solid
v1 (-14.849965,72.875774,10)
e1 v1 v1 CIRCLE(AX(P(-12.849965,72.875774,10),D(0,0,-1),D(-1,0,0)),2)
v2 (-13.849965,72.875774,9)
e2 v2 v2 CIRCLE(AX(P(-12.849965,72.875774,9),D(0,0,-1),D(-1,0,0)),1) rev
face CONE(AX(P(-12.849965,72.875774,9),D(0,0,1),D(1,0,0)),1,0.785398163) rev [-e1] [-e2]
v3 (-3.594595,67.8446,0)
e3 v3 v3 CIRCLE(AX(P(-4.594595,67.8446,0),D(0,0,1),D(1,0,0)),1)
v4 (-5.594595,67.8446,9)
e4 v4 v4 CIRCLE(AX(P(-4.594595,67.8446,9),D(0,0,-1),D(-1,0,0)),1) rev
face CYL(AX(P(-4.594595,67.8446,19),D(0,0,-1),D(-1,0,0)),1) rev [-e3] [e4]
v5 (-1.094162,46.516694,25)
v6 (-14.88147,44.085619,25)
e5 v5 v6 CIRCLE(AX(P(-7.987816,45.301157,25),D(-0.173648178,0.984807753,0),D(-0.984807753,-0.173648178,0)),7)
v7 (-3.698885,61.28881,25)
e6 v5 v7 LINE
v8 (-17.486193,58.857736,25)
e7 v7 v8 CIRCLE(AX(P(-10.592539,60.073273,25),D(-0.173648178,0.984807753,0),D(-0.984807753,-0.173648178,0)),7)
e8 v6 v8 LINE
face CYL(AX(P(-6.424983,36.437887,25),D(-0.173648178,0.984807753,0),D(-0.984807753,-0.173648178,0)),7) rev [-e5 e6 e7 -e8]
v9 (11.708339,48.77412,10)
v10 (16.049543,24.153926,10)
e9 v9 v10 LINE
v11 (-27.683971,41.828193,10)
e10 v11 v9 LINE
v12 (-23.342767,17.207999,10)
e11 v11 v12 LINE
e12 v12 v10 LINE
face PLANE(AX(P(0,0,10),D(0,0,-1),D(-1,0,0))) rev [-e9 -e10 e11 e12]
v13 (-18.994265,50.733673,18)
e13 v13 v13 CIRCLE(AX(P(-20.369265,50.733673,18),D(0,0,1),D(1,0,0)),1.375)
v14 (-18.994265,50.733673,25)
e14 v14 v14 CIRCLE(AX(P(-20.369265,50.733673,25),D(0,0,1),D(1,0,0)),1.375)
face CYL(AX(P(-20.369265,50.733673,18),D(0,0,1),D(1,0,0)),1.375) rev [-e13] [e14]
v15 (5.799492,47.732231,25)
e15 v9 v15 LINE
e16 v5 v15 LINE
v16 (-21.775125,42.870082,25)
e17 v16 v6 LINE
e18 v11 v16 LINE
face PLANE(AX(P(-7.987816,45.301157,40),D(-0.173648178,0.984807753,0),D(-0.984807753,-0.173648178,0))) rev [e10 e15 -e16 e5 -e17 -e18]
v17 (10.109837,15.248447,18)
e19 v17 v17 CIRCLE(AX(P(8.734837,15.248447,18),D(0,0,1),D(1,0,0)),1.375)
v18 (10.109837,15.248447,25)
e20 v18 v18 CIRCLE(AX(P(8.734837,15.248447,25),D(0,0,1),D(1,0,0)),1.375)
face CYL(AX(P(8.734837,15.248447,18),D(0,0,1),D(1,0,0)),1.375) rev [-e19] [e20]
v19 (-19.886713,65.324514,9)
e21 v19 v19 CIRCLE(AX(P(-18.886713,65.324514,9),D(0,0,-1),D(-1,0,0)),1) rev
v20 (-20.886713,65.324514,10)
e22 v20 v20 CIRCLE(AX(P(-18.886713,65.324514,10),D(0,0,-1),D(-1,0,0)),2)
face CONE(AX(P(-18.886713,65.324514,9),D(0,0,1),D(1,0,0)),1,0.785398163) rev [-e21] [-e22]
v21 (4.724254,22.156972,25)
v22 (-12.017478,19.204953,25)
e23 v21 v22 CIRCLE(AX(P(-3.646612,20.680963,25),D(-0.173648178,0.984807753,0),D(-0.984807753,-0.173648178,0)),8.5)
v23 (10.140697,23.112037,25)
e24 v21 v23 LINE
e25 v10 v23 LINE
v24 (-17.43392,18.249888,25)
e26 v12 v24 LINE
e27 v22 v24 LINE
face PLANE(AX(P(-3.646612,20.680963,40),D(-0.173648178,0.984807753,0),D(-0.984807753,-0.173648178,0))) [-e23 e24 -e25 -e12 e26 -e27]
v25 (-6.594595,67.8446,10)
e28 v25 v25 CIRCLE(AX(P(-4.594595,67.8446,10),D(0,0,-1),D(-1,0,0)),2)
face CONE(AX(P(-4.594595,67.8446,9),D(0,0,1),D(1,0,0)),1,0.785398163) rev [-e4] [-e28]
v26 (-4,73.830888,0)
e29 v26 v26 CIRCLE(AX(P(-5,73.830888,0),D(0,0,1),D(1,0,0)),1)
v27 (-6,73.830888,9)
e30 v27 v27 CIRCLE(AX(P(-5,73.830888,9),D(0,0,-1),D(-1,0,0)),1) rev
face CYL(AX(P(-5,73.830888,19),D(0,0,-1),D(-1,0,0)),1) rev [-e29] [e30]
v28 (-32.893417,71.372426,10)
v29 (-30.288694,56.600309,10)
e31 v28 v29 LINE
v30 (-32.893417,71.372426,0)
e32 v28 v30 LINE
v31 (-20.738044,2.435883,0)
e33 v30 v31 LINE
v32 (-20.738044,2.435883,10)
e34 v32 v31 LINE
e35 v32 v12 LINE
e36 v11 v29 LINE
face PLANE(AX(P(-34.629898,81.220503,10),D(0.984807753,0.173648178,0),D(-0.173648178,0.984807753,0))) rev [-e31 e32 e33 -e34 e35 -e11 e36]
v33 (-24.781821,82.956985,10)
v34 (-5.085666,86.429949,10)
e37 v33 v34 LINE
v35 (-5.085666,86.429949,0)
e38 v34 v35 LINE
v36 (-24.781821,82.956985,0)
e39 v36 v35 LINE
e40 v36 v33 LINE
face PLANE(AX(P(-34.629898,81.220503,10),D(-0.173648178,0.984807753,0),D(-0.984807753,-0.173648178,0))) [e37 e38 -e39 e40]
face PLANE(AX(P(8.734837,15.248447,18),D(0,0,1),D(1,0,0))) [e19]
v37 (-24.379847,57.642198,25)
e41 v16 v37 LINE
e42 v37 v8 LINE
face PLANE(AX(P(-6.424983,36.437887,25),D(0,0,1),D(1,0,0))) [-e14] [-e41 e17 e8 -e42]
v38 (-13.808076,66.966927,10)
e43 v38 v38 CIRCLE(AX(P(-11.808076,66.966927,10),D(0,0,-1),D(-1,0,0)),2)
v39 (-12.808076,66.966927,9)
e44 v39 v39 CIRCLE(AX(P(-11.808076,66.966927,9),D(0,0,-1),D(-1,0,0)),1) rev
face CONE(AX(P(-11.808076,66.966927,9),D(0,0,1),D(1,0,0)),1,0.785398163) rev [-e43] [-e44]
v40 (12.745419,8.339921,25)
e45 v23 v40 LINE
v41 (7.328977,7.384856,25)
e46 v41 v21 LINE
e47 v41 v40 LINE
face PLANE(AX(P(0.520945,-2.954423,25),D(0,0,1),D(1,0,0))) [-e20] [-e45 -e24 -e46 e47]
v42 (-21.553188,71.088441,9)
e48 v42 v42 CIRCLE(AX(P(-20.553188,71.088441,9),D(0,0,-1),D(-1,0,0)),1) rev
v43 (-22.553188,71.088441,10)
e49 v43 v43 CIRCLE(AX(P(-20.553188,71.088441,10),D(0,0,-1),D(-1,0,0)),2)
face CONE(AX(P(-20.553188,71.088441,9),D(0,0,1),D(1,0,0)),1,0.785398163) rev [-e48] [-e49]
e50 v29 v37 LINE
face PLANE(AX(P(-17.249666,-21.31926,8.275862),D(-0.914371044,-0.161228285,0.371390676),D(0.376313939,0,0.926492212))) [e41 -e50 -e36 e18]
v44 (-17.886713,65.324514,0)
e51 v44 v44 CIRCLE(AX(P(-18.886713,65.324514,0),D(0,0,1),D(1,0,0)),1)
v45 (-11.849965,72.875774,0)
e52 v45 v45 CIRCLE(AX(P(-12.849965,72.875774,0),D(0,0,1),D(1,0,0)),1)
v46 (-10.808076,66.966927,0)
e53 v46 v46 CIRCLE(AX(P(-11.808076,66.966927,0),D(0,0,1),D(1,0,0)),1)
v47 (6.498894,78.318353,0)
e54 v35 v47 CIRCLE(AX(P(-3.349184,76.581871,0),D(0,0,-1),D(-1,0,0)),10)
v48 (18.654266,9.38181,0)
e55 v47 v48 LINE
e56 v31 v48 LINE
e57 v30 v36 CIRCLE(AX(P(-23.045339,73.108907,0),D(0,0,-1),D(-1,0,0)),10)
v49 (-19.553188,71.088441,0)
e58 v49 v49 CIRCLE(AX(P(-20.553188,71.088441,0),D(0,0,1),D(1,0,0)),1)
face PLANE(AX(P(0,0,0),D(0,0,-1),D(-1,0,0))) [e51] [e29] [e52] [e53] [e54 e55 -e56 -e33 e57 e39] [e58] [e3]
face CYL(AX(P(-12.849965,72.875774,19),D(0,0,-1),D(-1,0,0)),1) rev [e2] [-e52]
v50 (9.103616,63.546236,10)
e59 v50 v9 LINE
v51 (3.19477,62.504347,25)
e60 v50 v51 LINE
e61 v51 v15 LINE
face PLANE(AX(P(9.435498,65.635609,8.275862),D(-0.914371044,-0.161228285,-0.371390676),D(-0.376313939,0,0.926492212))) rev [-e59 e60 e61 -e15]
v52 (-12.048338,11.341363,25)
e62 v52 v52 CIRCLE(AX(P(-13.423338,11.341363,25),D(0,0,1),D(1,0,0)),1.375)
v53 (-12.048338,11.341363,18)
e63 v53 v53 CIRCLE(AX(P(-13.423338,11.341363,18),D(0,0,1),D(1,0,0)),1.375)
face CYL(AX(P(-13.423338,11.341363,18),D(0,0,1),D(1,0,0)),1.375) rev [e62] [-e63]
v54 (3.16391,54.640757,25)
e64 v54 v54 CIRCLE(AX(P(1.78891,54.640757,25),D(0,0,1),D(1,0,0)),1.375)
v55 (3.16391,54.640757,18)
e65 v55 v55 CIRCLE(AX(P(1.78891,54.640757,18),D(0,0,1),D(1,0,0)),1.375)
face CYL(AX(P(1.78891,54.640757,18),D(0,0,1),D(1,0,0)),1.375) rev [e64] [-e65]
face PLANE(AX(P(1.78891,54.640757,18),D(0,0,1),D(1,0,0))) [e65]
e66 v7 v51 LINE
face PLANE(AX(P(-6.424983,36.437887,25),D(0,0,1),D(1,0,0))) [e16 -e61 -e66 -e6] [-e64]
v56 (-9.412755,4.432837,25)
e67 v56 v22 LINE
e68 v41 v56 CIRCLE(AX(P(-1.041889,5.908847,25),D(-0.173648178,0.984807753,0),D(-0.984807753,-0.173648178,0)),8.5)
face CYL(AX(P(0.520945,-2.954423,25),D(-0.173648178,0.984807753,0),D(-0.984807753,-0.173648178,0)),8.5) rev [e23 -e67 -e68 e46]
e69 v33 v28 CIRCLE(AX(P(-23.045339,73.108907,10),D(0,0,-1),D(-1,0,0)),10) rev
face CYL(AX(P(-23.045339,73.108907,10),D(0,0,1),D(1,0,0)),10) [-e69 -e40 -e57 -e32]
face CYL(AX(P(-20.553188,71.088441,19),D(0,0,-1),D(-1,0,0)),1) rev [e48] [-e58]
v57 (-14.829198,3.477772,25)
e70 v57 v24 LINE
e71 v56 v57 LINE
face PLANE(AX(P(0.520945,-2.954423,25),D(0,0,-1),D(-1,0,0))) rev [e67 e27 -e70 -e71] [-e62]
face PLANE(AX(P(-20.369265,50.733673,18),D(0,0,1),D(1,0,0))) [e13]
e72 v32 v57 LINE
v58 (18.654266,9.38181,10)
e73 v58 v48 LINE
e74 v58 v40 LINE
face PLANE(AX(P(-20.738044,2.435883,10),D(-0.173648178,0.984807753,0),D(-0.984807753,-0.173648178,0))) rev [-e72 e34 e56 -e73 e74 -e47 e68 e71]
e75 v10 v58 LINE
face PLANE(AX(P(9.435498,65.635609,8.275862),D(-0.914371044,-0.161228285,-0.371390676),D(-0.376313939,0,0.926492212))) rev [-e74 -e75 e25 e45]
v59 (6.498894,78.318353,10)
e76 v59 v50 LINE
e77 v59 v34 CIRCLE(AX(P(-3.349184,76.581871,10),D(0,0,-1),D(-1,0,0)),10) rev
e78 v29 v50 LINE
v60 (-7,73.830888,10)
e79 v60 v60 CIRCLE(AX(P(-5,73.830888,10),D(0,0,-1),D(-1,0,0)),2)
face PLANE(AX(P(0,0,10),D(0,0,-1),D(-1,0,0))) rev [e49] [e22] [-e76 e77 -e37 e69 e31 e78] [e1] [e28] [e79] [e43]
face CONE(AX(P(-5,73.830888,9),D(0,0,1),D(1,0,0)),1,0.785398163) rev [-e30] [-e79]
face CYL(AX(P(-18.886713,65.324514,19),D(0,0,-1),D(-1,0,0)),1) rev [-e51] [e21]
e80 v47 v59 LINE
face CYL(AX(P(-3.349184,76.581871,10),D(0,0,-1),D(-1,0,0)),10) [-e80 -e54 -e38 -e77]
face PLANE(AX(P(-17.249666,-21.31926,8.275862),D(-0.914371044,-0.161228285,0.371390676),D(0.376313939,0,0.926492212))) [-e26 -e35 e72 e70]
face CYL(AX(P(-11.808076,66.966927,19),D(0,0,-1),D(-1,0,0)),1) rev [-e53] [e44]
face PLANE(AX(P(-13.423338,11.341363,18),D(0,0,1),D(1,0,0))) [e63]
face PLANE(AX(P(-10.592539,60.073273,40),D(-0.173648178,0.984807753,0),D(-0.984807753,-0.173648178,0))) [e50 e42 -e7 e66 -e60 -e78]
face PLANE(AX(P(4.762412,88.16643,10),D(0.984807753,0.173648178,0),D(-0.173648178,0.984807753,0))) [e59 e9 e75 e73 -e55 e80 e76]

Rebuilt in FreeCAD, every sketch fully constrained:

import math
import FreeCAD as App
import Part
import Sketcher
Q = App.Units.Quantity


def edges_at(feature, points):
    """Names of the edges that pass closest to the given points."""
    edges = feature.Shape.Edges
    near = lambda p: min(range(len(edges)), key=lambda i: edges[i].distToShape(Part.Vertex(*p))[0])
    return sorted({f"Edge{near(p) + 1}" for p in points})

doc = App.newDocument("Part")
body = doc.addObject("PartDesign::Body", "Body")

sketch1 = body.newObject("Sketcher::SketchObject", "Sketch")
sketch1.AttachmentSupport = (doc.getObject("XY_Plane"), [""])
sketch1.MapMode = "FlatFace"
sketch1.addGeometry([
    Part.LineSegment(App.Vector(5, 88, 0), App.Vector(-35, 81, 0)),
    Part.LineSegment(App.Vector(-35, 81, 0), App.Vector(-21, 2, 0)),
    Part.LineSegment(App.Vector(-21, 2, 0), App.Vector(19, 9, 0)),
    Part.LineSegment(App.Vector(19, 9, 0), App.Vector(5, 88, 0)),
], False)
sketch1.addConstraint([
    Sketcher.Constraint("Coincident", 0, 2, 1, 1),
    Sketcher.Constraint("Coincident", 1, 2, 2, 1),
    Sketcher.Constraint("Coincident", 2, 2, 3, 1),
    Sketcher.Constraint("Coincident", 3, 2, 0, 1),
    Sketcher.Constraint("Perpendicular", 0, 1),
    Sketcher.Constraint("Perpendicular", 1, 2),
    Sketcher.Constraint("Perpendicular", 2, 3),
    Sketcher.Constraint("Angle", 0, Q("-170 deg")),
    Sketcher.Constraint("Distance", 0, Q("40 mm")),
    Sketcher.Constraint("Distance", 1, Q("80 mm")),
    Sketcher.Constraint("DistanceX", 0, 2, -1, 1, Q("34.629898 mm")),
    Sketcher.Constraint("DistanceY", -1, 1, 2, 2, Q("9.38181 mm")),
])
pad1 = body.newObject("PartDesign::Pad", "Pad")
pad1.Profile = sketch1
pad1.Length = 10

sketch2 = body.newObject("Sketcher::SketchObject", "Sketch001")
sketch2.AttachmentSupport = (doc.getObject("XY_Plane"), [""])
sketch2.MapMode = "FlatFace"
sketch2.addGeometry([
    Part.Circle(App.Vector(-20.6, 71.1, 0), App.Vector(0, 0, 1), 1),
    Part.Circle(App.Vector(-5, 73.8, 0), App.Vector(0, 0, 1), 1),
    Part.Circle(App.Vector(-18.9, 65.3, 0), App.Vector(0, 0, 1), 1),
    Part.Circle(App.Vector(-4.6, 67.8, 0), App.Vector(0, 0, 1), 1),
    Part.Circle(App.Vector(-12.8, 72.9, 0), App.Vector(0, 0, 1), 1),
    Part.Circle(App.Vector(-11.8, 67, 0), App.Vector(0, 0, 1), 1),
], False)
sketch2.addConstraint([
    Sketcher.Constraint("Equal", 0, 1),
    Sketcher.Constraint("Equal", 1, 2),
    Sketcher.Constraint("Equal", 2, 3),
    Sketcher.Constraint("Equal", 3, 4),
    Sketcher.Constraint("Equal", 4, 5),
    Sketcher.Constraint("Diameter", 0, Q("2 mm")),
    Sketcher.Constraint("DistanceX", 1, 3, -1, 1, Q("5 mm")),
    Sketcher.Constraint("DistanceY", -1, 1, 3, 3, Q("67.8446 mm")),
    Sketcher.Constraint("DistanceY", -1, 1, 0, 3, Q("71.088441 mm")),
    Sketcher.Constraint("DistanceY", 3, 3, 1, 3, Q("5.986288 mm")),
    Sketcher.Constraint("DistanceX", 2, 3, 3, 3, Q("14.292118 mm")),
    Sketcher.Constraint("DistanceX", 4, 3, 3, 3, Q("8.255371 mm")),
    Sketcher.Constraint("DistanceY", 2, 3, 4, 3, Q("7.55126 mm")),
    Sketcher.Constraint("DistanceX", 4, 3, 5, 3, Q("1.041889 mm")),
    Sketcher.Constraint("DistanceY", 5, 3, 1, 3, Q("6.863961 mm")),
    Sketcher.Constraint("DistanceX", 0, 3, 5, 3, Q("8.745112 mm")),
    Sketcher.Constraint("DistanceX", 0, 3, -1, 1, Q("20.553188 mm")),
    Sketcher.Constraint("DistanceY", -1, 1, 2, 3, Q("65.324514 mm")),
])
pocket1 = body.newObject("PartDesign::Pocket", "Pocket")
pocket1.Profile = sketch2
pocket1.Length = 19
pocket1.Reversed = True
doc.recompute()

chamfer = body.newObject("PartDesign::Chamfer", "Chamfer")
chamfer.Base = (pocket1, edges_at(pocket1, [
    (-4, 73.831, 10),
    (-3.595, 67.845, 10),
    (-17.887, 65.325, 10),
    (-11.85, 72.876, 10),
    (-10.808, 66.967, 10),
    (-19.553, 71.088, 10),
]))
chamfer.Size = 1

sketch3 = body.newObject("Sketcher::SketchObject", "Sketch002")
sketch3.AttachmentSupport = (doc.getObject("XY_Plane"), [""])
sketch3.MapMode = "FlatFace"
sketch3.AttachmentOffset = App.Placement(App.Vector(0, 0, 10), App.Rotation())
sketch3.addGeometry([
    Part.LineSegment(App.Vector(-30, 57, 0), App.Vector(-28, 42, 0)),
    Part.LineSegment(App.Vector(-28, 42, 0), App.Vector(12, 49, 0)),
    Part.LineSegment(App.Vector(12, 49, 0), App.Vector(9, 64, 0)),
    Part.LineSegment(App.Vector(9, 64, 0), App.Vector(-30, 57, 0)),
    Part.LineSegment(App.Vector(16, 24, 0), App.Vector(-23, 17, 0)),
    Part.LineSegment(App.Vector(-23, 17, 0), App.Vector(-21, 2, 0)),
    Part.LineSegment(App.Vector(-21, 2, 0), App.Vector(19, 9, 0)),
    Part.LineSegment(App.Vector(19, 9, 0), App.Vector(16, 24, 0)),
], False)
sketch3.addConstraint([
    Sketcher.Constraint("Coincident", 0, 2, 1, 1),
    Sketcher.Constraint("Coincident", 1, 2, 2, 1),
    Sketcher.Constraint("Coincident", 2, 2, 3, 1),
    Sketcher.Constraint("Coincident", 3, 2, 0, 1),
    Sketcher.Constraint("Coincident", 4, 2, 5, 1),
    Sketcher.Constraint("Coincident", 5, 2, 6, 1),
    Sketcher.Constraint("Coincident", 6, 2, 7, 1),
    Sketcher.Constraint("Coincident", 7, 2, 4, 1),
    Sketcher.Constraint("Perpendicular", 0, 1),
    Sketcher.Constraint("Perpendicular", 1, 2),
    Sketcher.Constraint("Perpendicular", 2, 3),
    Sketcher.Constraint("Parallel", 3, 4),
    Sketcher.Constraint("Perpendicular", 4, 5),
    Sketcher.Constraint("Perpendicular", 5, 6),
    Sketcher.Constraint("Perpendicular", 6, 7),
    Sketcher.Constraint("Equal", 3, 4),
    Sketcher.Constraint("Equal", 2, 5),
    Sketcher.Constraint("Angle", 0, Q("-80 deg")),
    Sketcher.Constraint("Distance", 0, Q("15 mm")),
    Sketcher.Constraint("Distance", 1, Q("40 mm")),
    Sketcher.Constraint("DistanceY", -1, 1, 4, 2, Q("17.207999 mm")),
    Sketcher.Constraint("DistanceX", 0, 2, -1, 1, Q("27.683971 mm")),
    Sketcher.Constraint("DistanceY", -1, 1, 1, 2, Q("48.77412 mm")),
    Sketcher.Constraint("DistanceX", 3, 2, 5, 2, Q("9.55065 mm")),
])
pad2 = body.newObject("PartDesign::Pad", "Pad001")
pad2.Profile = sketch3
pad2.Length = 30

sketch4 = body.newObject("Sketcher::SketchObject", "Sketch003")
sketch4.Placement = App.Placement(App.Vector(-3.646612, 20.680963, 0), App.Rotation(App.Vector(0.984807753, 0.173648178, 0), App.Vector(0, 0, -1), App.Vector(-0.173648178, 0.984807753, 0), "ZXY"))
sketch4.addGeometry([
    Part.LineSegment(App.Vector(-14, -25, 0), App.Vector(-20, -10, 0)),
    Part.LineSegment(App.Vector(-20, -10, 0), App.Vector(-20, -40, 0)),
    Part.LineSegment(App.Vector(-20, -40, 0), App.Vector(-14, -40, 0)),
    Part.LineSegment(App.Vector(-14, -40, 0), App.Vector(-14, -25, 0)),
    Part.LineSegment(App.Vector(14, -25, 0), App.Vector(14, -40, 0)),
    Part.LineSegment(App.Vector(14, -40, 0), App.Vector(20, -40, 0)),
    Part.LineSegment(App.Vector(20, -40, 0), App.Vector(20, -10, 0)),
    Part.LineSegment(App.Vector(20, -10, 0), App.Vector(14, -25, 0)),
], False)
sketch4.addConstraint([
    Sketcher.Constraint("Coincident", 0, 2, 1, 1),
    Sketcher.Constraint("Coincident", 1, 2, 2, 1),
    Sketcher.Constraint("Coincident", 2, 2, 3, 1),
    Sketcher.Constraint("Coincident", 3, 2, 0, 1),
    Sketcher.Constraint("Coincident", 4, 2, 5, 1),
    Sketcher.Constraint("Coincident", 5, 2, 6, 1),
    Sketcher.Constraint("Coincident", 6, 2, 7, 1),
    Sketcher.Constraint("Coincident", 7, 2, 4, 1),
    Sketcher.Constraint("Vertical", 1),
    Sketcher.Constraint("Horizontal", 2),
    Sketcher.Constraint("Vertical", 3),
    Sketcher.Constraint("Vertical", 4),
    Sketcher.Constraint("Horizontal", 5),
    Sketcher.Constraint("Vertical", 6),
    Sketcher.Constraint("Symmetric", 2, 2, 4, 2, -2),
    Sketcher.Constraint("Symmetric", 0, 2, 6, 2, -2),
    Sketcher.Constraint("Horizontal", 3, 2, 7, 2),
    Sketcher.Constraint("DistanceX", 2, 1, 2, 2, Q("6 mm")),
    Sketcher.Constraint("DistanceY", 1, 2, 1, 1, Q("30 mm")),
    Sketcher.Constraint("DistanceY", 3, 1, 3, 2, Q("15 mm")),
    Sketcher.Constraint("DistanceX", 0, 2, -1, 1, Q("20 mm")),
    Sketcher.Constraint("DistanceY", 0, 2, -1, 1, Q("10 mm")),
])
pocket2 = body.newObject("PartDesign::Pocket", "Pocket001")
pocket2.Profile = sketch4
pocket2.Type = "ThroughAll"
pocket2.Midplane = True

sketch5 = body.newObject("Sketcher::SketchObject", "Sketch004")
sketch5.Placement = App.Placement(App.Vector(-3.646612, 20.680963, 0), App.Rotation(App.Vector(0.984807753, 0.173648178, 0), App.Vector(0, 0, -1), App.Vector(-0.173648178, 0.984807753, 0), "ZXY"))
sketch5.addGeometry([
    Part.ArcOfCircle(Part.Circle(App.Vector(0, -25, 0), App.Vector(0, 0, 1), 8), math.radians(0), math.radians(180)),
    Part.LineSegment(App.Vector(-9, -25, 0), App.Vector(-14, -25, 0)),
    Part.LineSegment(App.Vector(-14, -25, 0), App.Vector(-14, -40, 0)),
    Part.LineSegment(App.Vector(-14, -40, 0), App.Vector(14, -40, 0)),
    Part.LineSegment(App.Vector(14, -40, 0), App.Vector(14, -25, 0)),
    Part.LineSegment(App.Vector(14, -25, 0), App.Vector(9, -25, 0)),
], False)
sketch5.addConstraint([
    Sketcher.Constraint("Coincident", 0, 2, 1, 1),
    Sketcher.Constraint("Coincident", 1, 2, 2, 1),
    Sketcher.Constraint("Coincident", 2, 2, 3, 1),
    Sketcher.Constraint("Coincident", 3, 2, 4, 1),
    Sketcher.Constraint("Coincident", 4, 2, 5, 1),
    Sketcher.Constraint("Coincident", 5, 2, 0, 1),
    Sketcher.Constraint("Horizontal", 1),
    Sketcher.Constraint("Vertical", 2),
    Sketcher.Constraint("Horizontal", 3),
    Sketcher.Constraint("Vertical", 4),
    Sketcher.Constraint("Horizontal", 5),
    Sketcher.Constraint("Symmetric", 1, 2, 4, 2, -2),
    Sketcher.Constraint("PointOnObject", 0, 3, -2),
    Sketcher.Constraint("Radius", 0, Q("8.5 mm")),
    Sketcher.Constraint("DistanceX", 3, 1, 3, 2, Q("28 mm")),
    Sketcher.Constraint("DistanceY", 2, 2, 2, 1, Q("15 mm")),
    Sketcher.Constraint("DistanceY", 0, 3, -1, 1, Q("25 mm")),
    Sketcher.Constraint("DistanceY", 0, 2, -1, 1, Q("25 mm")),
])
pocket3 = body.newObject("PartDesign::Pocket", "Pocket002")
pocket3.Profile = sketch5
pocket3.Length = 24

sketch6 = body.newObject("Sketcher::SketchObject", "Sketch005")
sketch6.Placement = App.Placement(App.Vector(-10.592539, 60.073273, 0), App.Rotation(App.Vector(0.984807753, 0.173648178, 0), App.Vector(0, 0, -1), App.Vector(-0.173648178, 0.984807753, 0), "ZXY"))
sketch6.addGeometry([
    Part.LineSegment(App.Vector(-7, -25, 0), App.Vector(-14, -25, 0)),
    Part.LineSegment(App.Vector(-14, -25, 0), App.Vector(-20, -10, 0)),
    Part.LineSegment(App.Vector(-20, -10, 0), App.Vector(-20, -40, 0)),
    Part.LineSegment(App.Vector(-20, -40, 0), App.Vector(20, -40, 0)),
    Part.LineSegment(App.Vector(20, -40, 0), App.Vector(20, -10, 0)),
    Part.LineSegment(App.Vector(20, -10, 0), App.Vector(14, -25, 0)),
    Part.LineSegment(App.Vector(14, -25, 0), App.Vector(7, -25, 0)),
    Part.ArcOfCircle(Part.Circle(App.Vector(0, -25, 0), App.Vector(0, 0, 1), 7), math.radians(0), math.radians(180)),
], False)
sketch6.addConstraint([
    Sketcher.Constraint("Coincident", 0, 2, 1, 1),
    Sketcher.Constraint("Coincident", 1, 2, 2, 1),
    Sketcher.Constraint("Coincident", 2, 2, 3, 1),
    Sketcher.Constraint("Coincident", 3, 2, 4, 1),
    Sketcher.Constraint("Coincident", 4, 2, 5, 1),
    Sketcher.Constraint("Coincident", 5, 2, 6, 1),
    Sketcher.Constraint("Coincident", 6, 2, 7, 1),
    Sketcher.Constraint("Coincident", 7, 2, 0, 1),
    Sketcher.Constraint("Horizontal", 0),
    Sketcher.Constraint("Vertical", 2),
    Sketcher.Constraint("Horizontal", 3),
    Sketcher.Constraint("Vertical", 4),
    Sketcher.Constraint("Horizontal", 6),
    Sketcher.Constraint("Symmetric", 1, 2, 4, 2, -2),
    Sketcher.Constraint("Symmetric", 0, 2, 5, 2, -2),
    Sketcher.Constraint("PointOnObject", 7, 3, -2),
    Sketcher.Constraint("Horizontal", 7, 3, 0, 2),
    Sketcher.Constraint("Radius", 7, Q("7 mm")),
    Sketcher.Constraint("DistanceX", 0, 2, 0, 1, Q("7 mm")),
    Sketcher.Constraint("DistanceX", 3, 1, 3, 2, Q("40 mm")),
    Sketcher.Constraint("DistanceY", 2, 2, 2, 1, Q("30 mm")),
    Sketcher.Constraint("DistanceY", 7, 3, -1, 1, Q("25 mm")),
    Sketcher.Constraint("DistanceY", 1, 2, -1, 1, Q("10 mm")),
])
pocket4 = body.newObject("PartDesign::Pocket", "Pocket003")
pocket4.Profile = sketch6
pocket4.Length = 24

sketch7 = body.newObject("Sketcher::SketchObject", "Sketch006")
sketch7.AttachmentSupport = (doc.getObject("XY_Plane"), [""])
sketch7.MapMode = "FlatFace"
sketch7.AttachmentOffset = App.Placement(App.Vector(0, 0, 25), App.Rotation())
sketch7.addGeometry([
    Part.Circle(App.Vector(-13.4, 11.3, 0), App.Vector(0, 0, 1), 1.4),
    Part.Circle(App.Vector(8.7, 15.2, 0), App.Vector(0, 0, 1), 1.4),
    Part.Circle(App.Vector(-20.4, 50.7, 0), App.Vector(0, 0, 1), 1.4),
    Part.Circle(App.Vector(1.8, 54.6, 0), App.Vector(0, 0, 1), 1.4),
], False)
sketch7.addConstraint([
    Sketcher.Constraint("Equal", 0, 1),
    Sketcher.Constraint("Equal", 1, 2),
    Sketcher.Constraint("Equal", 2, 3),
    Sketcher.Constraint("Diameter", 0, Q("2.75 mm")),
    Sketcher.Constraint("DistanceX", 2, 3, 1, 3, Q("29.104102 mm")),
    Sketcher.Constraint("DistanceX", -1, 1, 3, 3, Q("1.78891 mm")),
    Sketcher.Constraint("DistanceY", 0, 3, 2, 3, Q("39.39231 mm")),
    Sketcher.Constraint("DistanceY", 1, 3, 3, 3, Q("39.39231 mm")),
    Sketcher.Constraint("DistanceX", 0, 3, -1, 1, Q("13.423338 mm")),
    Sketcher.Constraint("DistanceY", -1, 1, 0, 3, Q("11.341363 mm")),
    Sketcher.Constraint("DistanceX", -1, 1, 1, 3, Q("8.734837 mm")),
    Sketcher.Constraint("DistanceY", -1, 1, 1, 3, Q("15.248447 mm")),
])
pocket5 = body.newObject("PartDesign::Pocket", "Pocket004")
pocket5.Profile = sketch7
pocket5.Length = 7
doc.recompute()

fillet = body.newObject("PartDesign::Fillet", "Fillet")
fillet.Base = (pocket5, edges_at(pocket5, [(-34.63, 81.221, 5), (4.762, 88.166, 5)]))
fillet.Radius = 10

doc.recompute()
